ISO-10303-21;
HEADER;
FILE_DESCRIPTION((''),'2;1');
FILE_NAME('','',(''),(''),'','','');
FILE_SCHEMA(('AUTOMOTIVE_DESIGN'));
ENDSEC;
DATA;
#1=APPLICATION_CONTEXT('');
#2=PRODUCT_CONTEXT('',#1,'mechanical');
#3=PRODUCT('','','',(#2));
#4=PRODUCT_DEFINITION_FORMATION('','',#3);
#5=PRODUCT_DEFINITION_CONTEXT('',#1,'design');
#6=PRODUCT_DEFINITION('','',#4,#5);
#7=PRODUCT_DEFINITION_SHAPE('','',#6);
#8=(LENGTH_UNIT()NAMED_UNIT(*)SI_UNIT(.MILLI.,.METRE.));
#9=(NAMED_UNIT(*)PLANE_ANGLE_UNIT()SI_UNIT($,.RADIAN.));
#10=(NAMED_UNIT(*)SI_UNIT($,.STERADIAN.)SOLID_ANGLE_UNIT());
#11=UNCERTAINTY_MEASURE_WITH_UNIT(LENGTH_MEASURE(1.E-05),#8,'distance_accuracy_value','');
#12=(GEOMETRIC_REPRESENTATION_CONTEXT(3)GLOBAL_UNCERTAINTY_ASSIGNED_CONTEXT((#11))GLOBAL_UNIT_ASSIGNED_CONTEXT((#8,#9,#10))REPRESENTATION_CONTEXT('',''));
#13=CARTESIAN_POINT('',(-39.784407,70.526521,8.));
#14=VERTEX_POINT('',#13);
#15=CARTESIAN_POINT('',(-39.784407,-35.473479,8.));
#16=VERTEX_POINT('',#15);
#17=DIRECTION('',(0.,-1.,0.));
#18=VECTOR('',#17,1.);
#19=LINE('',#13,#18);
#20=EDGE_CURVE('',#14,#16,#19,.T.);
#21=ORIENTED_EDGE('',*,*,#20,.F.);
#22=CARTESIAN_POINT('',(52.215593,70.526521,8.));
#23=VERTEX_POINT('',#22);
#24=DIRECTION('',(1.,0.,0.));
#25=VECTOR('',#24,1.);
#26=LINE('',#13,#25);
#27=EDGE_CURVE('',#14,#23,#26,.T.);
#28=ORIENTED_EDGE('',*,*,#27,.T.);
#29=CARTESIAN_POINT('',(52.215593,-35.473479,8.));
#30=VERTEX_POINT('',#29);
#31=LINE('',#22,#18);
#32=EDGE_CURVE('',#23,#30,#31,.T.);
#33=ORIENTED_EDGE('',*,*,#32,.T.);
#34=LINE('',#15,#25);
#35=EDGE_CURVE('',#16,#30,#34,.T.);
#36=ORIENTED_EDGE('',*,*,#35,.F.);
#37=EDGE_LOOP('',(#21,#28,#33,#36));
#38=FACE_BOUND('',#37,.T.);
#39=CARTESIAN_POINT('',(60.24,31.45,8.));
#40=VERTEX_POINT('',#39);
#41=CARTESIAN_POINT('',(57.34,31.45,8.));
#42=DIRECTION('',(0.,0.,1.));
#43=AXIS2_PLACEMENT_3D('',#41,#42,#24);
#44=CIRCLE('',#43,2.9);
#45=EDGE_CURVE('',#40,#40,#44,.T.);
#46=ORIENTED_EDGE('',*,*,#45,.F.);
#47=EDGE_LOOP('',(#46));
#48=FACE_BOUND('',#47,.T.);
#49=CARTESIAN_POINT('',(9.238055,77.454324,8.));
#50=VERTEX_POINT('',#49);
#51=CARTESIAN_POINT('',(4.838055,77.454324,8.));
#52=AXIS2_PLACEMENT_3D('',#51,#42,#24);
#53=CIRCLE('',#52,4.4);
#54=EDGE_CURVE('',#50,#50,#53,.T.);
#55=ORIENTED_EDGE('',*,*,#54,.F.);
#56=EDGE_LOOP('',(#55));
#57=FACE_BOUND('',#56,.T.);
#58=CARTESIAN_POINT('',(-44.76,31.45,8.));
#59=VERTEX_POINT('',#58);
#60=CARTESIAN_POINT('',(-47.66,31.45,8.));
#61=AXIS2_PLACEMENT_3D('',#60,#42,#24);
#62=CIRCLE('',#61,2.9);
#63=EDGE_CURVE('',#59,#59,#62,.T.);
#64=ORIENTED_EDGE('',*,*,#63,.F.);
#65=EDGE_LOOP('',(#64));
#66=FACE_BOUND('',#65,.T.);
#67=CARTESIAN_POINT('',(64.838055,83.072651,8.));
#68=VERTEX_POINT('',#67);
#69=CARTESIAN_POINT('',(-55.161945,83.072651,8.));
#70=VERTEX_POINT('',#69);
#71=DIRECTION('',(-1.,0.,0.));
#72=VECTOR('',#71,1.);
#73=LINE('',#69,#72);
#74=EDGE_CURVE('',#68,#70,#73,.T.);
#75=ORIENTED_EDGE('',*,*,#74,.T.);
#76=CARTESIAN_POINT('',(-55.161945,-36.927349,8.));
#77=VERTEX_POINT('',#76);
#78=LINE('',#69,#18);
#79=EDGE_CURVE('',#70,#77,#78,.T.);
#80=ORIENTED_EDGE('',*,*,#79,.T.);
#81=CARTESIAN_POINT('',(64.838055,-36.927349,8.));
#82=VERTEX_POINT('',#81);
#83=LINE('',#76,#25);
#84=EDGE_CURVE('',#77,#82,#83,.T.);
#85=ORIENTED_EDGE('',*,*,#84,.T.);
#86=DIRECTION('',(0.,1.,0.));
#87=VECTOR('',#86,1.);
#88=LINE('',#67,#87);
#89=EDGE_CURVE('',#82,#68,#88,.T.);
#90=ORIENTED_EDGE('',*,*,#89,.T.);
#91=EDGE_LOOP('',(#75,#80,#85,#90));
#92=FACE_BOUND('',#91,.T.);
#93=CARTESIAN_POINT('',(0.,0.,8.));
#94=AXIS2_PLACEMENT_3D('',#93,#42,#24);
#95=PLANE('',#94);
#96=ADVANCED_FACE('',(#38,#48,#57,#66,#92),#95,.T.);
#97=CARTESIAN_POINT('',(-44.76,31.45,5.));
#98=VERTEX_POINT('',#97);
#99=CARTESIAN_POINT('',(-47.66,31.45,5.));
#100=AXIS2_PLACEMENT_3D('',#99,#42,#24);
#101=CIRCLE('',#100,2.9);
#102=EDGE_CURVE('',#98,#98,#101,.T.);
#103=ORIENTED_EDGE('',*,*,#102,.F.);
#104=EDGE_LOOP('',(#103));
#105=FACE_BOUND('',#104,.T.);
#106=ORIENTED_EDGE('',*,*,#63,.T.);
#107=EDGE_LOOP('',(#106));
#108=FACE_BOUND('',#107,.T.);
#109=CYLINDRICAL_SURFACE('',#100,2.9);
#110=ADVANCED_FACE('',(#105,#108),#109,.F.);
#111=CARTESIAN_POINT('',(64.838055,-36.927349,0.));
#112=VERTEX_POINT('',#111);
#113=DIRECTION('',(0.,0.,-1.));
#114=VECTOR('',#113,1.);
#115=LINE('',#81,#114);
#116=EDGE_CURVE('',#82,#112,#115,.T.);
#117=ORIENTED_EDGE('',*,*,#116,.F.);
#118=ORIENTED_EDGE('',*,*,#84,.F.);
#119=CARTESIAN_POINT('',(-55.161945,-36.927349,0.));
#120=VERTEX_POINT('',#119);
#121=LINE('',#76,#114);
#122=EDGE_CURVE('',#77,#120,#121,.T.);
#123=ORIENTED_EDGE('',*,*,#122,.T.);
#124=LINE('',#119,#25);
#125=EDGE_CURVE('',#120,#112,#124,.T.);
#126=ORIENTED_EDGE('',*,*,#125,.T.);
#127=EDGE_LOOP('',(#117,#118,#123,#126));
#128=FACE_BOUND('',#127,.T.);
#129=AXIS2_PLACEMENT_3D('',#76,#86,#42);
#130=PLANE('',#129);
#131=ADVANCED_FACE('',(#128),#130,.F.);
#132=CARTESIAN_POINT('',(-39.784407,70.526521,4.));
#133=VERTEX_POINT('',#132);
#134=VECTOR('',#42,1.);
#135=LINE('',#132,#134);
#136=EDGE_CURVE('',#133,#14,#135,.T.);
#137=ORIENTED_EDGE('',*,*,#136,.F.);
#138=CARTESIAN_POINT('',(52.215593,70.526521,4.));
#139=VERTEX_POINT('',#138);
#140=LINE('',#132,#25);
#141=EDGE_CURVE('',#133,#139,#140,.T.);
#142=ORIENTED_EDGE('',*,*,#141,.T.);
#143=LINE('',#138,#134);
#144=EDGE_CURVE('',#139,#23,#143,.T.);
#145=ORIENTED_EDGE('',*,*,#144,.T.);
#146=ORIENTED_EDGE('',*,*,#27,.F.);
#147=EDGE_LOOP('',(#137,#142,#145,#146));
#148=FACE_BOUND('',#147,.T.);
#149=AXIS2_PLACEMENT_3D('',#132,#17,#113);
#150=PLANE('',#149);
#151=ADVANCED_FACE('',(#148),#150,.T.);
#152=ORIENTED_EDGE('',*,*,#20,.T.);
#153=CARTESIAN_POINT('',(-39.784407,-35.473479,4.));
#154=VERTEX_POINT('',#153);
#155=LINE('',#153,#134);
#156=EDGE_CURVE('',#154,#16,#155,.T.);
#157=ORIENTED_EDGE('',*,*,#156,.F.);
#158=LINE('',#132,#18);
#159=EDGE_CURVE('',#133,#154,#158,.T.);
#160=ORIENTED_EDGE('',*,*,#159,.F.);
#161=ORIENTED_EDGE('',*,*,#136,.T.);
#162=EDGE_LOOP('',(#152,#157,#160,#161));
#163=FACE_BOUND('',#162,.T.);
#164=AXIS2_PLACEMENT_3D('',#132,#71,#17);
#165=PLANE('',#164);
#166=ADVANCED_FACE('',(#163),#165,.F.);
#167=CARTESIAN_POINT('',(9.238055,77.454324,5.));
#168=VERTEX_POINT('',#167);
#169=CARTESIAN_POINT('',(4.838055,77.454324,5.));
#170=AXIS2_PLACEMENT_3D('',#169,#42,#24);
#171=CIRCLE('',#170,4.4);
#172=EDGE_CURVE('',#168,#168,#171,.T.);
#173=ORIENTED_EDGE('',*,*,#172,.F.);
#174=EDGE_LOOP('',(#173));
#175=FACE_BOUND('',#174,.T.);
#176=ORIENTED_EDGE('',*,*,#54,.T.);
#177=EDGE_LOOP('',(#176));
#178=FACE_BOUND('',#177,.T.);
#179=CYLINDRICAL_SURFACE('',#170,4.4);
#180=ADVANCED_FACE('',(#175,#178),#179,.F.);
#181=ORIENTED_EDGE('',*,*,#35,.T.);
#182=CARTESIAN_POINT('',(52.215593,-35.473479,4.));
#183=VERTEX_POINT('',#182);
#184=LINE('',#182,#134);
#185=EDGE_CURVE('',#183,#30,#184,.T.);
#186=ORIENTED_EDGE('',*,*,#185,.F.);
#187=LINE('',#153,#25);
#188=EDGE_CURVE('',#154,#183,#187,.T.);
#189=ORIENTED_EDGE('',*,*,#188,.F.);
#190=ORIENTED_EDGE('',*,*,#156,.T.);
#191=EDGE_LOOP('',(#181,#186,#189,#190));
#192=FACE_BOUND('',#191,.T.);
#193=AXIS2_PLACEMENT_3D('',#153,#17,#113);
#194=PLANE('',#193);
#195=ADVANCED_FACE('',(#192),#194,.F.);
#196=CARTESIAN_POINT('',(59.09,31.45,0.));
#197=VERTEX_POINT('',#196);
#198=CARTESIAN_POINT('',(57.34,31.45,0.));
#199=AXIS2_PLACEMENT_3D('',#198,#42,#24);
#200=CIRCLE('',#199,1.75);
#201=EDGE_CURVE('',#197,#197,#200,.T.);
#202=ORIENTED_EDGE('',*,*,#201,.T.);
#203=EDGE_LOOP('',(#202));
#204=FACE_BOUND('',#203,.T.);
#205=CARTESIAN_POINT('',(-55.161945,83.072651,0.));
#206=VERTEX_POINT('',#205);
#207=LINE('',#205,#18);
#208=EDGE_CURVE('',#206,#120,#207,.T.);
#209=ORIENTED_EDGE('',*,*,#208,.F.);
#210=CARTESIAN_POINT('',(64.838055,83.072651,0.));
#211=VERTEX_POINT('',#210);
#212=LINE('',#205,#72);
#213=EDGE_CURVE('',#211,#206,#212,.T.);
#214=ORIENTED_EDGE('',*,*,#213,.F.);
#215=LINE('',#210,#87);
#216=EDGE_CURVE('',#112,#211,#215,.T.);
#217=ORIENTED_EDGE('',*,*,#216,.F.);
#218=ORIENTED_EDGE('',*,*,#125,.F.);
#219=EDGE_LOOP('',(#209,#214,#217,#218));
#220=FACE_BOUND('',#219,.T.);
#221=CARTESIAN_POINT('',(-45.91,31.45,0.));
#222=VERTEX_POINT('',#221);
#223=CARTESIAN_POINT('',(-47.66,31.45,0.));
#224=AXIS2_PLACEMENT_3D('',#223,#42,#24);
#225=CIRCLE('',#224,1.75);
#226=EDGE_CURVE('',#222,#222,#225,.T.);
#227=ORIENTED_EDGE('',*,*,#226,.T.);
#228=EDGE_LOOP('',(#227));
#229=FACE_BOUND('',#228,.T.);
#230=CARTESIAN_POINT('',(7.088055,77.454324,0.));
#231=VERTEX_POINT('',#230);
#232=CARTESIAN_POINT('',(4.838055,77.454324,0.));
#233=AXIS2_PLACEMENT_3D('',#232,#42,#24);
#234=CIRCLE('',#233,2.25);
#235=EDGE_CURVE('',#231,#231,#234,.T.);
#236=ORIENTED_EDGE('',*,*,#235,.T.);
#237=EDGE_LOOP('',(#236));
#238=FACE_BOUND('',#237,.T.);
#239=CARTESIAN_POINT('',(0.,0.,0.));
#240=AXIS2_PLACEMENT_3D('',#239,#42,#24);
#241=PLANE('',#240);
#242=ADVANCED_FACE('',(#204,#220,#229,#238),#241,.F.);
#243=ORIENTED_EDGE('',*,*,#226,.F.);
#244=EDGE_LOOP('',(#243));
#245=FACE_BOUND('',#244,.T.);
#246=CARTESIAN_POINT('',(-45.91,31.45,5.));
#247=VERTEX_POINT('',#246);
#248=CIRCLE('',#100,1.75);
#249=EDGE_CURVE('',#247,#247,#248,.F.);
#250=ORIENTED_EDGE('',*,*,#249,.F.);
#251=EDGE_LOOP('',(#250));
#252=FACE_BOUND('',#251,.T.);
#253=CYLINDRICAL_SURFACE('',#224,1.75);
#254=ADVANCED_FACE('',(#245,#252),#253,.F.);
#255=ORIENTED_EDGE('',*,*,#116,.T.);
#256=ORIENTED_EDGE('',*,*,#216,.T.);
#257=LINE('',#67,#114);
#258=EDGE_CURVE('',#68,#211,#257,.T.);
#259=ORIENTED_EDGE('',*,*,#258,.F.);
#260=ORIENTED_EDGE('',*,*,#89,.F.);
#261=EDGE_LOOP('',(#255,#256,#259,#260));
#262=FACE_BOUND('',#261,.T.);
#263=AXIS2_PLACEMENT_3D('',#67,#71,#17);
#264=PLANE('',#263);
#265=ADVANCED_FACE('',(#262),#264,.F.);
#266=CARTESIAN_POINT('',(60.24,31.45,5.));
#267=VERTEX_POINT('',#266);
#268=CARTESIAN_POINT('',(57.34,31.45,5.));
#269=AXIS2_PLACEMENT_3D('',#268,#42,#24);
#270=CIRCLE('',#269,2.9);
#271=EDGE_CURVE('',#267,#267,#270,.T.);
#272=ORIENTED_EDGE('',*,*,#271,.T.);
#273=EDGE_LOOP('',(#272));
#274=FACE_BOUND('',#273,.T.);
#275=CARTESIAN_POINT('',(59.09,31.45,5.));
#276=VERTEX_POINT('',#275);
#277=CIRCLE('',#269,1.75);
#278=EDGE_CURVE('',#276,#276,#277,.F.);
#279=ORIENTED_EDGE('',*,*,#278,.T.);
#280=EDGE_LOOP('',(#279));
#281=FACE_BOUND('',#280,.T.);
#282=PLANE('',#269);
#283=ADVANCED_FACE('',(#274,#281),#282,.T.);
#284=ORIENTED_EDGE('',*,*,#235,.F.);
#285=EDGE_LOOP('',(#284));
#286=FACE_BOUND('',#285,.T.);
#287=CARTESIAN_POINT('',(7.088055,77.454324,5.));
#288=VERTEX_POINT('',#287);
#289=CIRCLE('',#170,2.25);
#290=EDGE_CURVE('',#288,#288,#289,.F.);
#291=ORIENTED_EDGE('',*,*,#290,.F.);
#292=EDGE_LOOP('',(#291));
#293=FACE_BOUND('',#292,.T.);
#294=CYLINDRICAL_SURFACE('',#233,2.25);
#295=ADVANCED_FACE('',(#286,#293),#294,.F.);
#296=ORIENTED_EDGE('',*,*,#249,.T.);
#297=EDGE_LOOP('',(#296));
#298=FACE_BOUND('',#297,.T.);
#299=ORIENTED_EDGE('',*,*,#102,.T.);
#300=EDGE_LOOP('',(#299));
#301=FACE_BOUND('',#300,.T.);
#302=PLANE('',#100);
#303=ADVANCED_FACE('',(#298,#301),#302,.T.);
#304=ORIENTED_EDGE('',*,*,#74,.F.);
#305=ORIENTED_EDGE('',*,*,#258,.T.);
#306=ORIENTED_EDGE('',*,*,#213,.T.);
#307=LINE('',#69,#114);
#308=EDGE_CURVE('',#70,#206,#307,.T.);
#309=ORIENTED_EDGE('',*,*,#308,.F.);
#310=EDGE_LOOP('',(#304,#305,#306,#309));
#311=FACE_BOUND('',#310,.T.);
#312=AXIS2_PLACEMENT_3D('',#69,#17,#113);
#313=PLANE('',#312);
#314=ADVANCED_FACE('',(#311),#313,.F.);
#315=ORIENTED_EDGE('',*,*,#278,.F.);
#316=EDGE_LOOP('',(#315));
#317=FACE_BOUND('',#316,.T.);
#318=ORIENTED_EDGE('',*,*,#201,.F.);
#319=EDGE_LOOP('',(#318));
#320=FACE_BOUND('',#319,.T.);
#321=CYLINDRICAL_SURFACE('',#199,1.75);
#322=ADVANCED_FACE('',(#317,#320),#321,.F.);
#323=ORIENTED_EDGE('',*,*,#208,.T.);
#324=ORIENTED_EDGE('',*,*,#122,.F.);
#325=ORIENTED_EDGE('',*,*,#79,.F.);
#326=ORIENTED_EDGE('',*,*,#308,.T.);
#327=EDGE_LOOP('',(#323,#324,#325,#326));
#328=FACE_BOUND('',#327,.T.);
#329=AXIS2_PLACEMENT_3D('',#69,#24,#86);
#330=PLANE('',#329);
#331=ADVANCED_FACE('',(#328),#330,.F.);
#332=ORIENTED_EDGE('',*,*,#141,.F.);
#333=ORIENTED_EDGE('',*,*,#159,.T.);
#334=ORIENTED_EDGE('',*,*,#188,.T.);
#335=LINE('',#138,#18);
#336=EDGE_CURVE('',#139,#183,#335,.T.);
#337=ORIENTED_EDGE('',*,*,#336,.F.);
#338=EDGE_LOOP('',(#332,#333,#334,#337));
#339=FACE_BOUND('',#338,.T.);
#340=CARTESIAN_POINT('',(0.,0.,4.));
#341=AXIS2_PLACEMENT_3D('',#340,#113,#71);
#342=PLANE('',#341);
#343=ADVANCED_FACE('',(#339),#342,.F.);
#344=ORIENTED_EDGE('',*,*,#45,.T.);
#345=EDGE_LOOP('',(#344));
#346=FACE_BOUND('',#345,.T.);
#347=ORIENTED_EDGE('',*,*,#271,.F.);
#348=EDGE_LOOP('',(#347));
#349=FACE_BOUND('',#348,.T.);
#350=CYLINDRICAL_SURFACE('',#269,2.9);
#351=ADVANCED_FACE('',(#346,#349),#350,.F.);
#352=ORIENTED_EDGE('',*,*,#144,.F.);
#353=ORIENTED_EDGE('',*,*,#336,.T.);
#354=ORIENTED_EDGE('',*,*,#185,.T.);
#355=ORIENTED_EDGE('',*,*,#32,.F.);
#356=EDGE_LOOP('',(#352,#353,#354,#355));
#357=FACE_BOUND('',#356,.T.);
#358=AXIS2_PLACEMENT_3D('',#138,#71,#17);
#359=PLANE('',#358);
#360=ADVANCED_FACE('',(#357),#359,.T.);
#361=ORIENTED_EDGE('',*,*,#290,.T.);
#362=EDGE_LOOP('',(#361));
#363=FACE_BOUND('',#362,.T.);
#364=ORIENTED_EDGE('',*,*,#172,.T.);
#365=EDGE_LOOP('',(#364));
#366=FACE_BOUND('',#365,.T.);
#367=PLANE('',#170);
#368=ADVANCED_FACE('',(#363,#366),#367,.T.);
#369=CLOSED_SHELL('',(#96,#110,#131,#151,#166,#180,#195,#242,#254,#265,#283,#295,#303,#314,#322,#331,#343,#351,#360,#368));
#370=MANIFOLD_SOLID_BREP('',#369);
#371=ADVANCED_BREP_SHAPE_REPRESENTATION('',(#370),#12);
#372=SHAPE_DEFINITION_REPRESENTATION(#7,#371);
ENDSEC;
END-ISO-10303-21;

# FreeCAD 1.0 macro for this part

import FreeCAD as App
import Part
import Sketcher


def add_polygon(sketch, points):
    """Adds a closed chain of lines whose ends are joined by coincident constraints."""
    first, n = sketch.GeometryCount, len(points)
    for a, b in zip(points, points[1:] + points[:1]):
        sketch.addGeometry(Part.LineSegment(App.Vector(*a, 0), App.Vector(*b, 0)), False)
    for i in range(n):
        sketch.addConstraint(Sketcher.Constraint("Coincident", first + i, 2, first + (i + 1) % n, 1))

doc = App.newDocument("Part")
body = doc.addObject("PartDesign::Body", "Body")

sketch1 = body.newObject("Sketcher::SketchObject", "Sketch")
sketch1.AttachmentSupport = (doc.getObject("XY_Plane"), [""])
sketch1.MapMode = "FlatFace"
add_polygon(sketch1, [(-55, 83), (-55, -37), (65, -37), (65, 83)])
sketch1.addConstraint(Sketcher.Constraint("Vertical", 0))
sketch1.addConstraint(Sketcher.Constraint("Horizontal", 1))
sketch1.addConstraint(Sketcher.Constraint("Vertical", 2))
sketch1.addConstraint(Sketcher.Constraint("Horizontal", 3))
sketch1.addConstraint(Sketcher.Constraint("Equal", 3, 0))
sketch1.addConstraint(Sketcher.Constraint("DistanceX", 1, 1, 1, 2, 120.0))
sketch1.addConstraint(Sketcher.Constraint("DistanceY", 0, 2, -1, 1, 36.927349))
sketch1.addConstraint(Sketcher.Constraint("DistanceX", 0, 2, -1, 1, 55.161945))
pad1 = body.newObject("PartDesign::Pad", "Pad")
pad1.Profile = sketch1
pad1.Length = 8

sketch2 = body.newObject("Sketcher::SketchObject", "Sketch001")
sketch2.AttachmentSupport = (doc.getObject("XY_Plane"), [""])
sketch2.MapMode = "FlatFace"
sketch2.AttachmentOffset = App.Placement(App.Vector(0, 0, 8), App.Rotation())
sketch2.addGeometry(Part.Circle(App.Vector(4.8, 77.5, 0), App.Vector(0, 0, 1), 2.2), False)
sketch2.addConstraint(Sketcher.Constraint("Diameter", 0, 4.5))
sketch2.addConstraint(Sketcher.Constraint("DistanceX", -1, 1, 0, 3, 4.838055))
sketch2.addConstraint(Sketcher.Constraint("DistanceY", -1, 1, 0, 3, 77.454324))
pocket1 = body.newObject("PartDesign::Pocket", "Pocket")
pocket1.Profile = sketch2
pocket1.Length = 8

sketch3 = body.newObject("Sketcher::SketchObject", "Sketch002")
sketch3.AttachmentSupport = (doc.getObject("XY_Plane"), [""])
sketch3.MapMode = "FlatFace"
sketch3.AttachmentOffset = App.Placement(App.Vector(0, 0, 8), App.Rotation())
sketch3.addGeometry(Part.Circle(App.Vector(4.8, 77.5, 0), App.Vector(0, 0, 1), 4.4), False)
sketch3.addConstraint(Sketcher.Constraint("Diameter", 0, 8.8))
sketch3.addConstraint(Sketcher.Constraint("DistanceX", -1, 1, 0, 3, 4.838055))
sketch3.addConstraint(Sketcher.Constraint("DistanceY", -1, 1, 0, 3, 77.454324))
pocket2 = body.newObject("PartDesign::Pocket", "Pocket001")
pocket2.Profile = sketch3
pocket2.Length = 3

sketch4 = body.newObject("Sketcher::SketchObject", "Sketch003")
sketch4.AttachmentSupport = (doc.getObject("XY_Plane"), [""])
sketch4.MapMode = "FlatFace"
sketch4.AttachmentOffset = App.Placement(App.Vector(0, 0, 8), App.Rotation())
sketch4.addGeometry(Part.Circle(App.Vector(57.3, 31.4, 0), App.Vector(0, 0, 1), 1.8), False)
sketch4.addConstraint(Sketcher.Constraint("Diameter", 0, 3.5))
sketch4.addConstraint(Sketcher.Constraint("DistanceX", -1, 1, 0, 3, 57.34))
sketch4.addConstraint(Sketcher.Constraint("DistanceY", -1, 1, 0, 3, 31.45))
pocket3 = body.newObject("PartDesign::Pocket", "Pocket002")
pocket3.Profile = sketch4
pocket3.Length = 8

sketch5 = body.newObject("Sketcher::SketchObject", "Sketch004")
sketch5.AttachmentSupport = (doc.getObject("XY_Plane"), [""])
sketch5.MapMode = "FlatFace"
sketch5.AttachmentOffset = App.Placement(App.Vector(0, 0, 8), App.Rotation())
sketch5.addGeometry(Part.Circle(App.Vector(57.3, 31.4, 0), App.Vector(0, 0, 1), 2.9), False)
sketch5.addConstraint(Sketcher.Constraint("Diameter", 0, 5.8))
sketch5.addConstraint(Sketcher.Constraint("DistanceX", -1, 1, 0, 3, 57.34))
sketch5.addConstraint(Sketcher.Constraint("DistanceY", -1, 1, 0, 3, 31.45))
pocket4 = body.newObject("PartDesign::Pocket", "Pocket003")
pocket4.Profile = sketch5
pocket4.Length = 3

sketch6 = body.newObject("Sketcher::SketchObject", "Sketch005")
sketch6.AttachmentSupport = (doc.getObject("XY_Plane"), [""])
sketch6.MapMode = "FlatFace"
sketch6.AttachmentOffset = App.Placement(App.Vector(0, 0, 8), App.Rotation())
sketch6.addGeometry(Part.Circle(App.Vector(-47.7, 31.4, 0), App.Vector(0, 0, 1), 1.8), False)
sketch6.addConstraint(Sketcher.Constraint("Diameter", 0, 3.5))
sketch6.addConstraint(Sketcher.Constraint("DistanceX", 0, 3, -1, 1, 47.66))
sketch6.addConstraint(Sketcher.Constraint("DistanceY", -1, 1, 0, 3, 31.45))
pocket5 = body.newObject("PartDesign::Pocket", "Pocket004")
pocket5.Profile = sketch6
pocket5.Length = 8

sketch7 = body.newObject("Sketcher::SketchObject", "Sketch006")
sketch7.AttachmentSupport = (doc.getObject("XY_Plane"), [""])
sketch7.MapMode = "FlatFace"
sketch7.AttachmentOffset = App.Placement(App.Vector(0, 0, 8), App.Rotation())
sketch7.addGeometry(Part.Circle(App.Vector(-47.7, 31.4, 0), App.Vector(0, 0, 1), 2.9), False)
sketch7.addConstraint(Sketcher.Constraint("Diameter", 0, 5.8))
sketch7.addConstraint(Sketcher.Constraint("DistanceX", 0, 3, -1, 1, 47.66))
sketch7.addConstraint(Sketcher.Constraint("DistanceY", -1, 1, 0, 3, 31.45))
pocket6 = body.newObject("PartDesign::Pocket", "Pocket005")
pocket6.Profile = sketch7
pocket6.Length = 3

sketch8 = body.newObject("Sketcher::SketchObject", "Sketch007")
sketch8.AttachmentSupport = (doc.getObject("XY_Plane"), [""])
sketch8.MapMode = "FlatFace"
sketch8.AttachmentOffset = App.Placement(App.Vector(0, 0, 8), App.Rotation())
add_polygon(sketch8, [(-40, 71), (-40, -35), (52, -35), (52, 71)])
sketch8.addConstraint(Sketcher.Constraint("Vertical", 0))
sketch8.addConstraint(Sketcher.Constraint("Horizontal", 1))
sketch8.addConstraint(Sketcher.Constraint("Vertical", 2))
sketch8.addConstraint(Sketcher.Constraint("Horizontal", 3))
sketch8.addConstraint(Sketcher.Constraint("DistanceX", 1, 1, 1, 2, 92.0))
sketch8.addConstraint(Sketcher.Constraint("DistanceY", 0, 2, 0, 1, 106.0))
sketch8.addConstraint(Sketcher.Constraint("DistanceY", 0, 2, -1, 1, 35.473479))
sketch8.addConstraint(Sketcher.Constraint("DistanceX", 0, 2, -1, 1, 39.784407))
pocket7 = body.newObject("PartDesign::Pocket", "Pocket006")
pocket7.Profile = sketch8
pocket7.Length = 4

doc.recompute()
